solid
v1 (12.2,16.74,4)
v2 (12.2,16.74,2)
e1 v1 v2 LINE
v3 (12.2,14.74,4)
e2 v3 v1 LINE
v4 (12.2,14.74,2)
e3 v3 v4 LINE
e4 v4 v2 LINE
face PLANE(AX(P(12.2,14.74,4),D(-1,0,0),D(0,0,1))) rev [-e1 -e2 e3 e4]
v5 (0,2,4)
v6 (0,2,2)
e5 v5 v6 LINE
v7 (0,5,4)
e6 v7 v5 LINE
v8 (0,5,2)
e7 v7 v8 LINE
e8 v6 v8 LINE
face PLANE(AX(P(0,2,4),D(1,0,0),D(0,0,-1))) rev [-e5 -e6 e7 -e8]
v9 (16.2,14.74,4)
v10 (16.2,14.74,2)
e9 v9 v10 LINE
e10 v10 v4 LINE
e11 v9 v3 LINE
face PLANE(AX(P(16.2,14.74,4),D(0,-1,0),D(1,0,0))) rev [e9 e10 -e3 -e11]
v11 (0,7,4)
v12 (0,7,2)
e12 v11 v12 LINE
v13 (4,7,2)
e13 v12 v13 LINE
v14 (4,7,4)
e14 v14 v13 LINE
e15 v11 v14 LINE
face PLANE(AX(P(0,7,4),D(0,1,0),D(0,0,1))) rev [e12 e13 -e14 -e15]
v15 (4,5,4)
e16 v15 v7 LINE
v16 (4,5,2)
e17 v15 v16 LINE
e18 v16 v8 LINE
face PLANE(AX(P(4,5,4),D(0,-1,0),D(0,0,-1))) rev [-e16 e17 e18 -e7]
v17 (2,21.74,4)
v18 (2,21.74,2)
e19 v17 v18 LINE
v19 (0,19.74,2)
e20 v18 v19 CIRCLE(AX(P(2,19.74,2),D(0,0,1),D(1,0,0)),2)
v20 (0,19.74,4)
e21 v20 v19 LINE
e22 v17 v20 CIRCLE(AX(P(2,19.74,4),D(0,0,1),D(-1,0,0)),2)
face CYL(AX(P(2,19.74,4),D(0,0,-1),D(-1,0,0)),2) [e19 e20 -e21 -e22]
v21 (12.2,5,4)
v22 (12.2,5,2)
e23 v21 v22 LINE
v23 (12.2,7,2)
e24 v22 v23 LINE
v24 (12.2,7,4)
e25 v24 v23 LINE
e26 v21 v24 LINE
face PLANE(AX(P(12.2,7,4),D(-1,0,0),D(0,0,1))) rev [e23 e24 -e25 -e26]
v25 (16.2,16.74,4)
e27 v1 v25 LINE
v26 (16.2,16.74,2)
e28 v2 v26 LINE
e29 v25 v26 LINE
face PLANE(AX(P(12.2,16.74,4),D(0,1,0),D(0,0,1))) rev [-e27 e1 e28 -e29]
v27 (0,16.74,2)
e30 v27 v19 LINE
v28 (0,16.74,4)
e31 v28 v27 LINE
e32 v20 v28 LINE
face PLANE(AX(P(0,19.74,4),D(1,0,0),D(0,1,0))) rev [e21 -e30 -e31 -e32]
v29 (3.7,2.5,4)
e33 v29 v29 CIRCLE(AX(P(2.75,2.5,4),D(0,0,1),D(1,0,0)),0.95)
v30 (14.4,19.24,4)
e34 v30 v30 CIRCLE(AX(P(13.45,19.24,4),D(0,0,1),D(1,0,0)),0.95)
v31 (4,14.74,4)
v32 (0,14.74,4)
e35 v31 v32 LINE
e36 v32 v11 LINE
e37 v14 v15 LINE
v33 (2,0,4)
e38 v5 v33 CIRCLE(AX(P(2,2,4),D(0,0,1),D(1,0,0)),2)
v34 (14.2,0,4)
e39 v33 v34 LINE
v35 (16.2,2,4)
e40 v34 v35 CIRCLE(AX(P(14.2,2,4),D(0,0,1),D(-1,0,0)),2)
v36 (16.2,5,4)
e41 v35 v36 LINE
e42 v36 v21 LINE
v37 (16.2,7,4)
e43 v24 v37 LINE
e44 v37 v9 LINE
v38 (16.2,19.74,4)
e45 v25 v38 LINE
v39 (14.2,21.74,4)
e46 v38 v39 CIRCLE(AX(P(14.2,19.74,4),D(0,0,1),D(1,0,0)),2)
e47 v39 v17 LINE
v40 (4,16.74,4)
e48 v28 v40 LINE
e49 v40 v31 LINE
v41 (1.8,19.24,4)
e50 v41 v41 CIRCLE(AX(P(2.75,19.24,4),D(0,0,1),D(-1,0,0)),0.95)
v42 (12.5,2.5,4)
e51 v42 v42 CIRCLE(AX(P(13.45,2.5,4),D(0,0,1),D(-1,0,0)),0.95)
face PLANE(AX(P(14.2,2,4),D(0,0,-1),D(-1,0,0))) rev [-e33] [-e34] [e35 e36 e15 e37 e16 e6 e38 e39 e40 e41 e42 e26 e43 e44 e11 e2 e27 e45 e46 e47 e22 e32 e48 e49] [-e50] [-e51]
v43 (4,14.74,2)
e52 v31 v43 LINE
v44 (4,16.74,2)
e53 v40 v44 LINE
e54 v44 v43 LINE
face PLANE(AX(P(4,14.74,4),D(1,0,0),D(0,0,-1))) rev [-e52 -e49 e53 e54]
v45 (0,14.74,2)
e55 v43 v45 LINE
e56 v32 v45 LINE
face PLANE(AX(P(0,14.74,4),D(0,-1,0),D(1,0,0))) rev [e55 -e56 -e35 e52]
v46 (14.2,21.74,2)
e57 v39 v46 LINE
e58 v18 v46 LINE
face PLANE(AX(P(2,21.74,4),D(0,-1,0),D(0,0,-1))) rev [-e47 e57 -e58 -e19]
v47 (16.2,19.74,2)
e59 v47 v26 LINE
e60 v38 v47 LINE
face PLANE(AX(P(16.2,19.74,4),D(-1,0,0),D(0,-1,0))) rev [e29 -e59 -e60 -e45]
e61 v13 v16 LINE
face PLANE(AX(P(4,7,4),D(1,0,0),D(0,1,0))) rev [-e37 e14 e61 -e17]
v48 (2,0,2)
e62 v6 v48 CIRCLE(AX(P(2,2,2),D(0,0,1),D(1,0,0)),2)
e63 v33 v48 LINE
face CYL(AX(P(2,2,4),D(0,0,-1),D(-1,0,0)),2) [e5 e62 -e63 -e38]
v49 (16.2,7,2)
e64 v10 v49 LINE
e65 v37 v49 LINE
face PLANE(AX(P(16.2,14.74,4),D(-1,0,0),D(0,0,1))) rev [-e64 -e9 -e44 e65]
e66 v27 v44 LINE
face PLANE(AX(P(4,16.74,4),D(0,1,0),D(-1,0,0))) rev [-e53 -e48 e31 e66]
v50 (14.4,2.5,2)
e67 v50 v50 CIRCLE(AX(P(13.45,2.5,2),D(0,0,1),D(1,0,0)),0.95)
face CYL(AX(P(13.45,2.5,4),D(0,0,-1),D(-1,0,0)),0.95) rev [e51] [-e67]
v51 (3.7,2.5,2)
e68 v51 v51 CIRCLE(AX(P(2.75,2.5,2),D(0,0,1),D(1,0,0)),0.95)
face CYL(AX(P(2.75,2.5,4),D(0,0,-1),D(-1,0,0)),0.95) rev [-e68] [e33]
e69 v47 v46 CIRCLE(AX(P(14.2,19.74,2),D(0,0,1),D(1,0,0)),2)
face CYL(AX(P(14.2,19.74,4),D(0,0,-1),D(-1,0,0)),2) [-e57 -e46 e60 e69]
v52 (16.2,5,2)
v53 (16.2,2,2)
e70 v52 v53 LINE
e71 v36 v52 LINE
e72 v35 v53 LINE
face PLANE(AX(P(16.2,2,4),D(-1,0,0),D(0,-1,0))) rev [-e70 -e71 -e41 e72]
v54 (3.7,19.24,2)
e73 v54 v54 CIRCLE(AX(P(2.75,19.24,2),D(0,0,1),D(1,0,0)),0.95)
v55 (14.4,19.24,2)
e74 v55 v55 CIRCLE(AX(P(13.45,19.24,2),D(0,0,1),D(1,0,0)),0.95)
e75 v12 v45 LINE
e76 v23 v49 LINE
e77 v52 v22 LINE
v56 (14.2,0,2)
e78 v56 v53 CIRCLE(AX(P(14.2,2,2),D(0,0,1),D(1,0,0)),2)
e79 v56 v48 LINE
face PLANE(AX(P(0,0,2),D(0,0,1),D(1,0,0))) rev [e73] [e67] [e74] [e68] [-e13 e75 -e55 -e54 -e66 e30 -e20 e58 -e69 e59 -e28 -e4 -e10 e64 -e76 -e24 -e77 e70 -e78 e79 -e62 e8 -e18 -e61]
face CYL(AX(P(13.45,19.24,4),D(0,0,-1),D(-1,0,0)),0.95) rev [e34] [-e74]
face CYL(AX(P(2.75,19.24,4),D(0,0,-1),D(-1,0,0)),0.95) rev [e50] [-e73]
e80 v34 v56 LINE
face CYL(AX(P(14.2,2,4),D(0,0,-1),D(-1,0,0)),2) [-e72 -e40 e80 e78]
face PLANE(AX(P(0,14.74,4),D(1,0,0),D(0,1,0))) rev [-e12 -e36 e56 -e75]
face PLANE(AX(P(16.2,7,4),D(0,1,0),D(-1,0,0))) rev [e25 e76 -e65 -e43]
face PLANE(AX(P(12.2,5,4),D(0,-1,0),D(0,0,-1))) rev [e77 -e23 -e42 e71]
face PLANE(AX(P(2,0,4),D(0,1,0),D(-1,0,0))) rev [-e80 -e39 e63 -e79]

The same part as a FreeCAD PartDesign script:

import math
import FreeCAD as App
import Part
import Sketcher

V = App.Vector
Q = App.Units.Quantity


def add_polygon(sketch, points):
    """Adds a closed chain of lines whose ends are joined by coincident constraints."""
    first, n = sketch.GeometryCount, len(points)
    for a, b in zip(points, points[1:] + points[:1]):
        sketch.addGeometry(Part.LineSegment(App.Vector(*a, 0), App.Vector(*b, 0)), False)
    for i in range(n):
        sketch.addConstraint(Sketcher.Constraint("Coincident", first + i, 2, first + (i + 1) % n, 1))

doc = App.newDocument("Part")
body = doc.addObject("PartDesign::Body", "Body")

# Sketch on XY plane
sketch1 = body.newObject("Sketcher::SketchObject", "Sketch")
sketch1.AttachmentSupport = (doc.getObject("XY_Plane"), [""])
sketch1.MapMode = "FlatFace"
sketch1.addGeometry([
    Part.LineSegment(V(0, 14.7, 0), V(0, 7, 0)),  # 0
    Part.LineSegment(V(0, 7, 0), V(4, 7, 0)),  # 1
    Part.LineSegment(V(4, 7, 0), V(4, 5, 0)),  # 2
    Part.LineSegment(V(4, 5, 0), V(0, 5, 0)),  # 3
    Part.LineSegment(V(0, 5, 0), V(0, 2, 0)),  # 4
    Part.ArcOfCircle(Part.Circle(V(2, 2, 0), V(0, 0, 1), 2), math.radians(-180), math.radians(-90)),  # 5
    Part.LineSegment(V(2, 0, 0), V(14.2, 0, 0)),  # 6
    Part.ArcOfCircle(Part.Circle(V(14.2, 2, 0), V(0, 0, 1), 2), math.radians(-90), math.radians(0)),  # 7
    Part.LineSegment(V(16.2, 2, 0), V(16.2, 5, 0)),  # 8
    Part.LineSegment(V(16.2, 5, 0), V(12.2, 5, 0)),  # 9
    Part.LineSegment(V(12.2, 5, 0), V(12.2, 7, 0)),  # 10
    Part.LineSegment(V(12.2, 7, 0), V(16.2, 7, 0)),  # 11
    Part.LineSegment(V(16.2, 7, 0), V(16.2, 14.7, 0)),  # 12
    Part.LineSegment(V(16.2, 14.7, 0), V(12.2, 14.7, 0)),  # 13
    Part.LineSegment(V(12.2, 14.7, 0), V(12.2, 16.7, 0)),  # 14
    Part.LineSegment(V(12.2, 16.7, 0), V(16.2, 16.7, 0)),  # 15
    Part.LineSegment(V(16.2, 16.7, 0), V(16.2, 19.7, 0)),  # 16
    Part.ArcOfCircle(Part.Circle(V(14.2, 19.7, 0), V(0, 0, 1), 2), math.radians(0), math.radians(90)),  # 17
    Part.LineSegment(V(14.2, 21.7, 0), V(2, 21.7, 0)),  # 18
    Part.ArcOfCircle(Part.Circle(V(2, 19.7, 0), V(0, 0, 1), 2), math.radians(90), math.radians(180)),  # 19
    Part.LineSegment(V(0, 19.7, 0), V(0, 16.7, 0)),  # 20
    Part.LineSegment(V(0, 16.7, 0), V(4, 16.7, 0)),  # 21
    Part.LineSegment(V(4, 16.7, 0), V(4, 14.7, 0)),  # 22
    Part.LineSegment(V(4, 14.7, 0), V(0, 14.7, 0)),  # 23
    Part.Circle(V(2.8, 2.5, 0), V(0, 0, 1), 0.9),  # 24
    Part.Circle(V(13.4, 2.5, 0), V(0, 0, 1), 0.9),  # 25
    Part.Circle(V(2.8, 19.2, 0), V(0, 0, 1), 0.9),  # 26
    Part.Circle(V(13.4, 19.2, 0), V(0, 0, 1), 0.9),  # 27
], False)
sketch1.addConstraint([
    Sketcher.Constraint("Coincident", 0, 2, 1, 1),
    Sketcher.Constraint("Coincident", 1, 2, 2, 1),
    Sketcher.Constraint("Coincident", 2, 2, 3, 1),
    Sketcher.Constraint("Coincident", 3, 2, 4, 1),
    Sketcher.Constraint("Tangent", 4, 2, 5, 1),
    Sketcher.Constraint("Tangent", 5, 2, 6, 1),
    Sketcher.Constraint("Tangent", 6, 2, 7, 1),
    Sketcher.Constraint("Tangent", 7, 2, 8, 1),
    Sketcher.Constraint("Coincident", 8, 2, 9, 1),
    Sketcher.Constraint("Coincident", 9, 2, 10, 1),
    Sketcher.Constraint("Coincident", 10, 2, 11, 1),
    Sketcher.Constraint("Coincident", 11, 2, 12, 1),
    Sketcher.Constraint("Coincident", 12, 2, 13, 1),
    Sketcher.Constraint("Coincident", 13, 2, 14, 1),
    Sketcher.Constraint("Coincident", 14, 2, 15, 1),
    Sketcher.Constraint("Coincident", 15, 2, 16, 1),
    Sketcher.Constraint("Tangent", 16, 2, 17, 1),
    Sketcher.Constraint("Tangent", 17, 2, 18, 1),
    Sketcher.Constraint("Tangent", 18, 2, 19, 1),
    Sketcher.Constraint("Tangent", 19, 2, 20, 1),
    Sketcher.Constraint("Coincident", 20, 2, 21, 1),
    Sketcher.Constraint("Coincident", 21, 2, 22, 1),
    Sketcher.Constraint("Coincident", 22, 2, 23, 1),
    Sketcher.Constraint("Coincident", 23, 2, 0, 1),
    Sketcher.Constraint("Vertical", 0),
    Sketcher.Constraint("Horizontal", 1),
    Sketcher.Constraint("Vertical", 2),
    Sketcher.Constraint("Horizontal", 3),
    Sketcher.Constraint("Vertical", 4),
    Sketcher.Constraint("Horizontal", 6),
    Sketcher.Constraint("Vertical", 8),
    Sketcher.Constraint("Horizontal", 9),
    Sketcher.Constraint("Vertical", 10),
    Sketcher.Constraint("Horizontal", 11),
    Sketcher.Constraint("Vertical", 12),
    Sketcher.Constraint("Horizontal", 13),
    Sketcher.Constraint("Vertical", 14),
    Sketcher.Constraint("Horizontal", 15),
    Sketcher.Constraint("Vertical", 16),
    Sketcher.Constraint("Horizontal", 18),
    Sketcher.Constraint("Vertical", 20),
    Sketcher.Constraint("Horizontal", 21),
    Sketcher.Constraint("Vertical", 22),
    Sketcher.Constraint("Horizontal", 23),
    Sketcher.Constraint("Equal", 5, 7),
    Sketcher.Constraint("Equal", 7, 17),
    Sketcher.Constraint("Equal", 17, 19),
    Sketcher.Constraint("Equal", 24, 25),
    Sketcher.Constraint("Equal", 25, 26),
    Sketcher.Constraint("Equal", 26, 27),
    Sketcher.Constraint("PointOnObject", 0, 2, -2),
    Sketcher.Constraint("PointOnObject", 3, 2, -2),
    Sketcher.Constraint("PointOnObject", 5, 2, -1),
    Sketcher.Constraint("PointOnObject", 19, 2, -2),
    Sketcher.Constraint("Horizontal", 24, 3, 25, 3),
    Sketcher.Constraint("Horizontal", 26, 3, 27, 3),
    Sketcher.Constraint("Horizontal", 3, 2, 8, 2),
    Sketcher.Constraint("Horizontal", 1, 2, 10, 2),
    Sketcher.Constraint("Horizontal", 15, 2, 20, 2),
    Sketcher.Constraint("Horizontal", 13, 2, 22, 2),
    Sketcher.Constraint("Vertical", 7, 3, 17, 3),
    Sketcher.Constraint("Vertical", 24, 3, 26, 3),
    Sketcher.Constraint("Vertical", 25, 3, 27, 3),
    Sketcher.Constraint("Vertical", 8, 2, 11, 2),
    Sketcher.Constraint("Vertical", 10, 2, 13, 2),
    Sketcher.Constraint("Vertical", 2, 2, 21, 2),
    Sketcher.Constraint("Equal", 3, 9),
    Sketcher.Constraint("Equal", 10, 14),
    Sketcher.Constraint("Equal", 8, 16),
    Sketcher.Constraint("Radius", 5, Q("2 mm")),
    Sketcher.Constraint("Diameter", 24, Q("1.9 mm")),
    Sketcher.Constraint("DistanceX", 1, 1, 1, 2, Q("4 mm")),
    Sketcher.Constraint("DistanceY", 2, 2, 2, 1, Q("2 mm")),
    Sketcher.Constraint("DistanceY", 4, 2, 4, 1, Q("3 mm")),
    Sketcher.Constraint("DistanceX", 6, 1, 6, 2, Q("12.2 mm")),
    Sketcher.Constraint("DistanceY", 0, 2, 0, 1, Q("7.74 mm")),
    Sketcher.Constraint("DistanceY", -1, 1, 24, 3, Q("2.5 mm")),
    Sketcher.Constraint("DistanceX", 24, 3, 25, 3, Q("10.7 mm")),
    Sketcher.Constraint("DistanceY", 26, 3, 19, 3, Q("0.5 mm")),
    Sketcher.Constraint("DistanceX", -1, 1, 24, 3, Q("2.75 mm")),
])
pad1 = body.newObject("PartDesign::Pad", "Pad")
pad1.Profile = sketch1
pad1.Length = 4

# Sketch on XY plane
sketch2 = body.newObject("Sketcher::SketchObject", "Sketch001")
sketch2.AttachmentSupport = (doc.getObject("XY_Plane"), [""])
sketch2.MapMode = "FlatFace"
add_polygon(sketch2, [(16, 22), (16, 0), (0, 0), (0, 22)])  # lines 0-3
sketch2.addConstraint([
    Sketcher.Constraint("Vertical", 0),
    Sketcher.Constraint("Horizontal", 1),
    Sketcher.Constraint("Vertical", 2),
    Sketcher.Constraint("Horizontal", 3),
    Sketcher.Constraint("Coincident", 1, 2, -1, 1),
    Sketcher.Constraint("DistanceX", 1, 2, 1, 1, Q("16.2 mm")),
    Sketcher.Constraint("DistanceY", 0, 2, 0, 1, Q("21.74 mm")),
])
pocket1 = body.newObject("PartDesign::Pocket", "Pocket")
pocket1.Profile = sketch2
pocket1.Length = 2
pocket1.Reversed = True

doc.recompute()
